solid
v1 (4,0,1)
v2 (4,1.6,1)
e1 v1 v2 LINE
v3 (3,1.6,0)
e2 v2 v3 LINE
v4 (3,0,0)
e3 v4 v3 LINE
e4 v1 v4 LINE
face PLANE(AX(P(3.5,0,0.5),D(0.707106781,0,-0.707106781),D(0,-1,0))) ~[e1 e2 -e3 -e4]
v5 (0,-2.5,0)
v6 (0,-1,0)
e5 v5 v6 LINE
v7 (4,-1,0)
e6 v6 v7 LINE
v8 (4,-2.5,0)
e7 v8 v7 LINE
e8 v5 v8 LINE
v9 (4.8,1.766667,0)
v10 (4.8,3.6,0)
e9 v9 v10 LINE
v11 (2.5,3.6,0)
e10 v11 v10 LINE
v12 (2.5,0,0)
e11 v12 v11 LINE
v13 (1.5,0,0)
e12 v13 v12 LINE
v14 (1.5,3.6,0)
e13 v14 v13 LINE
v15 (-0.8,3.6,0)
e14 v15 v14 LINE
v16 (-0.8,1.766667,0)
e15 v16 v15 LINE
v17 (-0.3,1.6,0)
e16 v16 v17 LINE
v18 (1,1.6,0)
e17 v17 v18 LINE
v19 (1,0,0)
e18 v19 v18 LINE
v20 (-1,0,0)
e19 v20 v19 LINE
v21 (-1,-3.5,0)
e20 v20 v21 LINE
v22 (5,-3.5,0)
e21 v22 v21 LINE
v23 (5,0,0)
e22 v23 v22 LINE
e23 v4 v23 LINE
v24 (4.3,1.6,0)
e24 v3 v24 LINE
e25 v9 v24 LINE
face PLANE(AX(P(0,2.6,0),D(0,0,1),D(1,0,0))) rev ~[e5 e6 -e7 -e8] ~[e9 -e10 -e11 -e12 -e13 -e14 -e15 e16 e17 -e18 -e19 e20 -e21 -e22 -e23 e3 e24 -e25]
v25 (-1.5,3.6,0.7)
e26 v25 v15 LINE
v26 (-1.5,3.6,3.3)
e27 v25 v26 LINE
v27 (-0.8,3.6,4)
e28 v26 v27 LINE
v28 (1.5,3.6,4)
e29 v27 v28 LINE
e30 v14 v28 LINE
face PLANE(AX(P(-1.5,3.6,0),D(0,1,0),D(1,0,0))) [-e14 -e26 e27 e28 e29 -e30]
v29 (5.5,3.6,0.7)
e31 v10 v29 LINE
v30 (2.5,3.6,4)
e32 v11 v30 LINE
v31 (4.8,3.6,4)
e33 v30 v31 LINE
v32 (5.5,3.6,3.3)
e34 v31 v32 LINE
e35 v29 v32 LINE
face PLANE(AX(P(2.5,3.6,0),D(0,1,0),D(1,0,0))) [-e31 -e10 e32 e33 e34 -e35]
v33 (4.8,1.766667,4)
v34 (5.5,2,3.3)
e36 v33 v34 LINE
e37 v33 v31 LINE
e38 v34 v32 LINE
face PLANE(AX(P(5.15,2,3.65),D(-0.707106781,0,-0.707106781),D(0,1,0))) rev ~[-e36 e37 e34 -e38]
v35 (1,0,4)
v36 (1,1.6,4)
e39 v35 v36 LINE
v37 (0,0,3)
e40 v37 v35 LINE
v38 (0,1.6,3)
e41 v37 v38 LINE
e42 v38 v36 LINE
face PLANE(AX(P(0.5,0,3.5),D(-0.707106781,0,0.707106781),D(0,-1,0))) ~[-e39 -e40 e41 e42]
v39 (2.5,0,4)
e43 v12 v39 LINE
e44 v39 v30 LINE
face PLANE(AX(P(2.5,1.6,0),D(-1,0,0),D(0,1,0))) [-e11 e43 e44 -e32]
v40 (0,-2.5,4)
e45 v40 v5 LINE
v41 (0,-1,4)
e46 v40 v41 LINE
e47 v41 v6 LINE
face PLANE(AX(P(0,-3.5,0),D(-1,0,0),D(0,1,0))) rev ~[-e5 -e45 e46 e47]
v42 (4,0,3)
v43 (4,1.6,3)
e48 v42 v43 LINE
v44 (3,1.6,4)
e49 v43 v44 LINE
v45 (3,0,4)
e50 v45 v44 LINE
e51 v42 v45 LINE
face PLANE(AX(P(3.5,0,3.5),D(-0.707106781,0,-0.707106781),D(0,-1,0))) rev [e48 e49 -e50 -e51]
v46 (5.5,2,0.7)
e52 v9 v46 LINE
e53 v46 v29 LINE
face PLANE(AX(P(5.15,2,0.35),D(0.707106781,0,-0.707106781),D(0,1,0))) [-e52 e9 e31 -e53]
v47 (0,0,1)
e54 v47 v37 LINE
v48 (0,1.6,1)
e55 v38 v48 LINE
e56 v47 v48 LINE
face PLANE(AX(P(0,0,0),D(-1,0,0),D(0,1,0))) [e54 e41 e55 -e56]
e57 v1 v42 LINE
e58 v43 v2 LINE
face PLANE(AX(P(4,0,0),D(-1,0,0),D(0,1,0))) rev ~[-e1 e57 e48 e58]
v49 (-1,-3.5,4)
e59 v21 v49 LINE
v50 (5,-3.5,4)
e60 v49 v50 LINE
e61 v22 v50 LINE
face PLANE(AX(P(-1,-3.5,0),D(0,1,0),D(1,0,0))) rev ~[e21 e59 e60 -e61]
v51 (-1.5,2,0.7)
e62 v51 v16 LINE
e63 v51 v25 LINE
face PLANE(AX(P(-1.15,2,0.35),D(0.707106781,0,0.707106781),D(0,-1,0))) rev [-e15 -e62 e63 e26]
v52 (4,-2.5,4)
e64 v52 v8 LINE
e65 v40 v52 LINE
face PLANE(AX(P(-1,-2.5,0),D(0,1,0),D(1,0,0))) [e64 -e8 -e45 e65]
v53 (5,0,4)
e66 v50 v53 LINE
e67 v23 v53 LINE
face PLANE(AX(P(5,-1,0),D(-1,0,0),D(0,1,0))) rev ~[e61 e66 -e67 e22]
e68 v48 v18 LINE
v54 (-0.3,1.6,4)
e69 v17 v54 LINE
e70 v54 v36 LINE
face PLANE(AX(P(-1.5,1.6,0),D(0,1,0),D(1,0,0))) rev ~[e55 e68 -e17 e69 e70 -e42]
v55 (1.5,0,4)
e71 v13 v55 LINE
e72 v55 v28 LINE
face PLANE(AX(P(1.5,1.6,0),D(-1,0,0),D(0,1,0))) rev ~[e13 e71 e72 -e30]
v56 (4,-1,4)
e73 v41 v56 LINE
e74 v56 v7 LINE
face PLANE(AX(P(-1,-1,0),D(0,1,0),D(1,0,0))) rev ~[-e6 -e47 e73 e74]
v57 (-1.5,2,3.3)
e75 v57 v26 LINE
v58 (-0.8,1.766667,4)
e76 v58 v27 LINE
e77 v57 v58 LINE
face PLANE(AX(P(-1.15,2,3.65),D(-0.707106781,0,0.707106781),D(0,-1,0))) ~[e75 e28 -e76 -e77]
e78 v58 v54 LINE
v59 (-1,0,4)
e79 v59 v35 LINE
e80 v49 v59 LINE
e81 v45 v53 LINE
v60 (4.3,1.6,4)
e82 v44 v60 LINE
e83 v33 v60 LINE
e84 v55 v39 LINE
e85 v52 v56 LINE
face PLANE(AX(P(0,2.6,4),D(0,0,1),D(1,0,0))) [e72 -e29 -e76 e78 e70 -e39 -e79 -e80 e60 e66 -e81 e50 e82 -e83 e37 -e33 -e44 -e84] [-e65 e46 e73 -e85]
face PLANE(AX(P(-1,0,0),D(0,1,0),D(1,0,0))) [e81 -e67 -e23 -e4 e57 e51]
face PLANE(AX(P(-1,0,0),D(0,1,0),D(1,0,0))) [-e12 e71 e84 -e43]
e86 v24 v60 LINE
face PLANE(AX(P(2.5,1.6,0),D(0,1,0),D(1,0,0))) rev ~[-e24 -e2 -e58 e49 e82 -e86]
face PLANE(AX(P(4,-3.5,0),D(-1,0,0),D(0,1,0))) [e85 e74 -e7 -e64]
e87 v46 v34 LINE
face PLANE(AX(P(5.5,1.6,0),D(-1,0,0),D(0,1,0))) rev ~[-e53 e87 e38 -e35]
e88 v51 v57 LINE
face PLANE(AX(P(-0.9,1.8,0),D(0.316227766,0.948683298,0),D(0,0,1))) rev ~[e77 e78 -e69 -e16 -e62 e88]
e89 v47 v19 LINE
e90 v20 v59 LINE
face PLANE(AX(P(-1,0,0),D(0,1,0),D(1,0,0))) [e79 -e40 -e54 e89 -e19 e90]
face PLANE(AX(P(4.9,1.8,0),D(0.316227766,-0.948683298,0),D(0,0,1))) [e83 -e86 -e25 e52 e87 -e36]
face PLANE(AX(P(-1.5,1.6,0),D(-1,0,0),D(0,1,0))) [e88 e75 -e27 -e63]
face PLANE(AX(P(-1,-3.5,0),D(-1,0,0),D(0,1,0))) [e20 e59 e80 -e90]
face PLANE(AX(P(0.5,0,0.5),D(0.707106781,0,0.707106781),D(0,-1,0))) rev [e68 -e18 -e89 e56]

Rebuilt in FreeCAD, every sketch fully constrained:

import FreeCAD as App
import Part
import Sketcher

V = App.Vector
Q = App.Units.Quantity


def edges_at(feature, points):
    """Names of the edges that pass closest to the given points."""
    edges = feature.Shape.Edges
    near = lambda p: min(range(len(edges)), key=lambda i: edges[i].distToShape(Part.Vertex(*p))[0])
    return sorted({f"Edge{near(p) + 1}" for p in points})

doc = App.newDocument("Part")
body = doc.addObject("PartDesign::Body", "Body")

# Sketch on XY plane
sketch1 = doc.addObject("Sketcher::SketchObject", "Sketch")
body.addObject(sketch1)
sketch1.AttachmentSupport = (doc.XY_Plane, [""])
sketch1.MapMode = "FlatFace"
sketch1.addGeometry(Part.LineSegment(V(-1, -0.5, 0), V(-1, -3.5, 0)), False)
sketch1.addGeometry(Part.LineSegment(V(-1, -3.5, 0), V(0, -3.5, 0)), False)
sketch1.addGeometry(Part.LineSegment(V(0, -3.5, 0), V(0, -0.5, 0)), False)
sketch1.addGeometry(Part.LineSegment(V(0, -0.5, 0), V(-1, -0.5, 0)), False)
sketch1.addConstraint(Sketcher.Constraint("Coincident", 0, 2, 1, 1))
sketch1.addConstraint(Sketcher.Constraint("Coincident", 1, 2, 2, 1))
sketch1.addConstraint(Sketcher.Constraint("Coincident", 2, 2, 3, 1))
sketch1.addConstraint(Sketcher.Constraint("Coincident", 3, 2, 0, 1))
sketch1.addConstraint(Sketcher.Constraint("Vertical", 0))
sketch1.addConstraint(Sketcher.Constraint("Horizontal", 1))
sketch1.addConstraint(Sketcher.Constraint("Vertical", 2))
sketch1.addConstraint(Sketcher.Constraint("Horizontal", 3))
sketch1.addConstraint(Sketcher.Constraint("PointOnObject", 1, 2, -2))
sketch1.addConstraint(Sketcher.Constraint("DistanceX", 1, 1, 1, 2, Q("1 mm")))
sketch1.addConstraint(Sketcher.Constraint("DistanceY", 0, 2, 0, 1, Q("3 mm")))
sketch1.addConstraint(Sketcher.Constraint("DistanceY", 0, 2, -1, 1, Q("3.5 mm")))
pad1 = doc.addObject("PartDesign::Pad", "Pad")
body.addObject(pad1)
pad1.Profile = sketch1
pad1.Length = 4
body2 = doc.addObject("PartDesign::Body", "Body001")

# Sketch on XY plane
sketch2 = doc.addObject("Sketcher::SketchObject", "Sketch001")
body2.addObject(sketch2)
sketch2.AttachmentSupport = (doc.getObject("XY_Plane001"), [""])
sketch2.MapMode = "FlatFace"
sketch2.addGeometry(Part.LineSegment(V(2.5, 3.5, 0), V(2.5, 1.5, 0)), False)
sketch2.addGeometry(Part.LineSegment(V(2.5, 1.5, 0), V(5.5, 1.5, 0)), False)
sketch2.addGeometry(Part.LineSegment(V(5.5, 1.5, 0), V(5.5, 3.5, 0)), False)
sketch2.addGeometry(Part.LineSegment(V(5.5, 3.5, 0), V(2.5, 3.5, 0)), False)
sketch2.addConstraint(Sketcher.Constraint("Coincident", 0, 2, 1, 1))
sketch2.addConstraint(Sketcher.Constraint("Coincident", 1, 2, 2, 1))
sketch2.addConstraint(Sketcher.Constraint("Coincident", 2, 2, 3, 1))
sketch2.addConstraint(Sketcher.Constraint("Coincident", 3, 2, 0, 1))
sketch2.addConstraint(Sketcher.Constraint("Vertical", 0))
sketch2.addConstraint(Sketcher.Constraint("Horizontal", 1))
sketch2.addConstraint(Sketcher.Constraint("Vertical", 2))
sketch2.addConstraint(Sketcher.Constraint("Horizontal", 3))
sketch2.addConstraint(Sketcher.Constraint("DistanceX", 1, 1, 1, 2, Q("3 mm")))
sketch2.addConstraint(Sketcher.Constraint("DistanceY", 0, 2, 0, 1, Q("2 mm")))
sketch2.addConstraint(Sketcher.Constraint("DistanceX", -1, 1, 0, 2, Q("2.5 mm")))
sketch2.addConstraint(Sketcher.Constraint("DistanceY", -1, 1, 0, 2, Q("1.5 mm")))
pad2 = doc.addObject("PartDesign::Pad", "Pad001")
body2.addObject(pad2)
pad2.Profile = sketch2
pad2.Length = 4
doc.recompute()

chamfer = doc.addObject("PartDesign::Chamfer", "Chamfer")
body2.addObject(chamfer)
chamfer.Base = (pad2, edges_at(pad2, [(5.5, 1.5, 2)]))
chamfer.ChamferType = "Two distances"
chamfer.Size = 0.4
chamfer.Size2 = 1.2
chamfer.FlipDirection = True
doc.recompute()

chamfer2 = doc.addObject("PartDesign::Chamfer", "Chamfer001")
body2.addObject(chamfer2)
chamfer2.Base = (chamfer, edges_at(chamfer, [(5.5, 2.7, 4), (5.5, 2.7, 0)]))
chamfer2.Size = 0.7
body3 = doc.addObject("PartDesign::Body", "Body002")
doc.recompute()

body2.Placement = App.Placement(V(0, 0.1, 0), App.Rotation(V(0, 0, 1), 0))
boolean = doc.addObject("PartDesign::Boolean", "Boolean")
body3.addObject(boolean)
boolean.Type = "Fuse"
boolean.addObjects([body2])
body4 = doc.addObject("PartDesign::Body", "Body003")

# Sketch on XY plane
sketch3 = doc.addObject("Sketcher::SketchObject", "Sketch002")
body4.addObject(sketch3)
sketch3.AttachmentSupport = (doc.getObject("XY_Plane003"), [""])
sketch3.MapMode = "FlatFace"
sketch3.addGeometry(Part.LineSegment(V(4, -0.5, 0), V(4, -3.5, 0)), False)
sketch3.addGeometry(Part.LineSegment(V(4, -3.5, 0), V(5, -3.5, 0)), False)
sketch3.addGeometry(Part.LineSegment(V(5, -3.5, 0), V(5, -0.5, 0)), False)
sketch3.addGeometry(Part.LineSegment(V(5, -0.5, 0), V(4, -0.5, 0)), False)
sketch3.addConstraint(Sketcher.Constraint("Coincident", 0, 2, 1, 1))
sketch3.addConstraint(Sketcher.Constraint("Coincident", 1, 2, 2, 1))
sketch3.addConstraint(Sketcher.Constraint("Coincident", 2, 2, 3, 1))
sketch3.addConstraint(Sketcher.Constraint("Coincident", 3, 2, 0, 1))
sketch3.addConstraint(Sketcher.Constraint("Vertical", 0))
sketch3.addConstraint(Sketcher.Constraint("Horizontal", 1))
sketch3.addConstraint(Sketcher.Constraint("Vertical", 2))
sketch3.addConstraint(Sketcher.Constraint("Horizontal", 3))
sketch3.addConstraint(Sketcher.Constraint("DistanceX", 1, 1, 1, 2, Q("1 mm")))
sketch3.addConstraint(Sketcher.Constraint("DistanceY", 0, 2, 0, 1, Q("3 mm")))
sketch3.addConstraint(Sketcher.Constraint("DistanceX", -1, 1, 0, 2, Q("4 mm")))
sketch3.addConstraint(Sketcher.Constraint("DistanceY", 0, 2, -1, 1, Q("3.5 mm")))
pad3 = doc.addObject("PartDesign::Pad", "Pad002")
body4.addObject(pad3)
pad3.Profile = sketch3
pad3.Length = 4
body5 = doc.addObject("PartDesign::Body", "Body004")

# Sketch on XY plane
sketch4 = doc.addObject("Sketcher::SketchObject", "Sketch003")
body5.addObject(sketch4)
sketch4.AttachmentSupport = (doc.getObject("XY_Plane004"), [""])
sketch4.MapMode = "FlatFace"
sketch4.addGeometry(Part.LineSegment(V(-1, -2.5, 0), V(-1, -3.5, 0)), False)
sketch4.addGeometry(Part.LineSegment(V(-1, -3.5, 0), V(5, -3.5, 0)), False)
sketch4.addGeometry(Part.LineSegment(V(5, -3.5, 0), V(5, -2.5, 0)), False)
sketch4.addGeometry(Part.LineSegment(V(5, -2.5, 0), V(-1, -2.5, 0)), False)
sketch4.addConstraint(Sketcher.Constraint("Coincident", 0, 2, 1, 1))
sketch4.addConstraint(Sketcher.Constraint("Coincident", 1, 2, 2, 1))
sketch4.addConstraint(Sketcher.Constraint("Coincident", 2, 2, 3, 1))
sketch4.addConstraint(Sketcher.Constraint("Coincident", 3, 2, 0, 1))
sketch4.addConstraint(Sketcher.Constraint("Vertical", 0))
sketch4.addConstraint(Sketcher.Constraint("Horizontal", 1))
sketch4.addConstraint(Sketcher.Constraint("Vertical", 2))
sketch4.addConstraint(Sketcher.Constraint("Horizontal", 3))
sketch4.addConstraint(Sketcher.Constraint("DistanceX", 1, 1, 1, 2, Q("6 mm")))
sketch4.addConstraint(Sketcher.Constraint("DistanceY", 0, 2, 0, 1, Q("1 mm")))
sketch4.addConstraint(Sketcher.Constraint("DistanceX", 0, 2, -1, 1, Q("1 mm")))
sketch4.addConstraint(Sketcher.Constraint("DistanceY", 0, 2, -1, 1, Q("3.5 mm")))
pad4 = doc.addObject("PartDesign::Pad", "Pad003")
body5.addObject(pad4)
pad4.Profile = sketch4
pad4.Length = 4
body6 = doc.addObject("PartDesign::Body", "Body005")

# Sketch on XY plane
sketch5 = doc.addObject("Sketcher::SketchObject", "Sketch004")
body6.addObject(sketch5)
sketch5.AttachmentSupport = (doc.getObject("XY_Plane005"), [""])
sketch5.MapMode = "FlatFace"
sketch5.addGeometry(Part.LineSegment(V(-1, 0, 0), V(-1, -1, 0)), False)
sketch5.addGeometry(Part.LineSegment(V(-1, -1, 0), V(5, -1, 0)), False)
sketch5.addGeometry(Part.LineSegment(V(5, -1, 0), V(5, 0, 0)), False)
sketch5.addGeometry(Part.LineSegment(V(5, 0, 0), V(-1, 0, 0)), False)
sketch5.addConstraint(Sketcher.Constraint("Coincident", 0, 2, 1, 1))
sketch5.addConstraint(Sketcher.Constraint("Coincident", 1, 2, 2, 1))
sketch5.addConstraint(Sketcher.Constraint("Coincident", 2, 2, 3, 1))
sketch5.addConstraint(Sketcher.Constraint("Coincident", 3, 2, 0, 1))
sketch5.addConstraint(Sketcher.Constraint("Vertical", 0))
sketch5.addConstraint(Sketcher.Constraint("Horizontal", 1))
sketch5.addConstraint(Sketcher.Constraint("Vertical", 2))
sketch5.addConstraint(Sketcher.Constraint("Horizontal", 3))
sketch5.addConstraint(Sketcher.Constraint("PointOnObject", 2, 2, -1))
sketch5.addConstraint(Sketcher.Constraint("DistanceX", 1, 1, 1, 2, Q("6 mm")))
sketch5.addConstraint(Sketcher.Constraint("DistanceY", 0, 2, 0, 1, Q("1 mm")))
sketch5.addConstraint(Sketcher.Constraint("DistanceX", 0, 2, -1, 1, Q("1 mm")))
pad5 = doc.addObject("PartDesign::Pad", "Pad004")
body6.addObject(pad5)
pad5.Profile = sketch5
pad5.Length = 4
body7 = doc.addObject("PartDesign::Body", "Body006")

# Sketch on XY plane
sketch6 = doc.addObject("Sketcher::SketchObject", "Sketch005")
body7.addObject(sketch6)
sketch6.AttachmentSupport = (doc.getObject("XY_Plane006"), [""])
sketch6.MapMode = "FlatFace"
sketch6.addGeometry(Part.LineSegment(V(0, 2, 0), V(0, 0, 0)), False)
sketch6.addGeometry(Part.LineSegment(V(0, 0, 0), V(1.5, 0, 0)), False)
sketch6.addGeometry(Part.LineSegment(V(1.5, 0, 0), V(1.5, 2, 0)), False)
sketch6.addGeometry(Part.LineSegment(V(1.5, 2, 0), V(0, 2, 0)), False)
sketch6.addConstraint(Sketcher.Constraint("Coincident", 0, 2, 1, 1))
sketch6.addConstraint(Sketcher.Constraint("Coincident", 1, 2, 2, 1))
sketch6.addConstraint(Sketcher.Constraint("Coincident", 2, 2, 3, 1))
sketch6.addConstraint(Sketcher.Constraint("Coincident", 3, 2, 0, 1))
sketch6.addConstraint(Sketcher.Constraint("Vertical", 0))
sketch6.addConstraint(Sketcher.Constraint("Horizontal", 1))
sketch6.addConstraint(Sketcher.Constraint("Vertical", 2))
sketch6.addConstraint(Sketcher.Constraint("Horizontal", 3))
sketch6.addConstraint(Sketcher.Constraint("Coincident", 0, 2, -1, 1))
sketch6.addConstraint(Sketcher.Constraint("DistanceY", 0, 2, 0, 1, Q("2 mm")))
sketch6.addConstraint(Sketcher.Constraint("DistanceX", 1, 1, 1, 2, Q("1.5 mm")))
pad6 = doc.addObject("PartDesign::Pad", "Pad005")
body7.addObject(pad6)
pad6.Profile = sketch6
pad6.Length = 4
doc.recompute()

chamfer3 = doc.addObject("PartDesign::Chamfer", "Chamfer002")
body7.addObject(chamfer3)
chamfer3.Base = (pad6, edges_at(pad6, [(0, 1, 4), (0, 1, 0)]))
chamfer3.Size = 1
body8 = doc.addObject("PartDesign::Body", "Body007")

# Sketch on XY plane
sketch7 = doc.addObject("Sketcher::SketchObject", "Sketch006")
body8.addObject(sketch7)
sketch7.AttachmentSupport = (doc.getObject("XY_Plane007"), [""])
sketch7.MapMode = "FlatFace"
sketch7.addGeometry(Part.LineSegment(V(-1.5, 3.5, 0), V(-1.5, 1.5, 0)), False)
sketch7.addGeometry(Part.LineSegment(V(-1.5, 1.5, 0), V(1.5, 1.5, 0)), False)
sketch7.addGeometry(Part.LineSegment(V(1.5, 1.5, 0), V(1.5, 3.5, 0)), False)
sketch7.addGeometry(Part.LineSegment(V(1.5, 3.5, 0), V(-1.5, 3.5, 0)), False)
sketch7.addConstraint(Sketcher.Constraint("Coincident", 0, 2, 1, 1))
sketch7.addConstraint(Sketcher.Constraint("Coincident", 1, 2, 2, 1))
sketch7.addConstraint(Sketcher.Constraint("Coincident", 2, 2, 3, 1))
sketch7.addConstraint(Sketcher.Constraint("Coincident", 3, 2, 0, 1))
sketch7.addConstraint(Sketcher.Constraint("Vertical", 0))
sketch7.addConstraint(Sketcher.Constraint("Horizontal", 1))
sketch7.addConstraint(Sketcher.Constraint("Vertical", 2))
sketch7.addConstraint(Sketcher.Constraint("Horizontal", 3))
sketch7.addConstraint(Sketcher.Constraint("DistanceX", 1, 1, 1, 2, Q("3 mm")))
sketch7.addConstraint(Sketcher.Constraint("DistanceY", 0, 2, 0, 1, Q("2 mm")))
sketch7.addConstraint(Sketcher.Constraint("DistanceX", 0, 2, -1, 1, Q("1.5 mm")))
sketch7.addConstraint(Sketcher.Constraint("DistanceY", -1, 1, 0, 2, Q("1.5 mm")))
pad7 = doc.addObject("PartDesign::Pad", "Pad006")
body8.addObject(pad7)
pad7.Profile = sketch7
pad7.Length = 4
doc.recompute()

chamfer4 = doc.addObject("PartDesign::Chamfer", "Chamfer003")
body8.addObject(chamfer4)
chamfer4.Base = (pad7, edges_at(pad7, [(-1.5, 1.5, 2)]))
chamfer4.ChamferType = "Two distances"
chamfer4.Size = 0.4
chamfer4.Size2 = 1.2
doc.recompute()

chamfer5 = doc.addObject("PartDesign::Chamfer", "Chamfer004")
body8.addObject(chamfer5)
chamfer5.Base = (chamfer4, edges_at(chamfer4, [(-1.5, 2.7, 4), (-1.5, 2.7, 0)]))
chamfer5.Size = 0.7
body9 = doc.addObject("PartDesign::Body", "Body008")
doc.recompute()

body8.Placement = App.Placement(V(0, 0.1, 0), App.Rotation(V(0, 0, 1), 0))
boolean2 = doc.addObject("PartDesign::Boolean", "Boolean001")
body9.addObject(boolean2)
boolean2.Type = "Fuse"
boolean2.addObjects([body8])
body10 = doc.addObject("PartDesign::Body", "Body009")
body10.AllowCompound = True

# Sketch on XY plane
sketch8 = doc.addObject("Sketcher::SketchObject", "Sketch007")
body10.addObject(sketch8)
sketch8.AttachmentSupport = (doc.getObject("XY_Plane009"), [""])
sketch8.MapMode = "FlatFace"
sketch8.addGeometry(Part.LineSegment(V(2.5, 2, 0), V(2.5, 0, 0)), False)
sketch8.addGeometry(Part.LineSegment(V(2.5, 0, 0), V(4, 0, 0)), False)
sketch8.addGeometry(Part.LineSegment(V(4, 0, 0), V(4, 2, 0)), False)
sketch8.addGeometry(Part.LineSegment(V(4, 2, 0), V(2.5, 2, 0)), False)
sketch8.addConstraint(Sketcher.Constraint("Coincident", 0, 2, 1, 1))
sketch8.addConstraint(Sketcher.Constraint("Coincident", 1, 2, 2, 1))
sketch8.addConstraint(Sketcher.Constraint("Coincident", 2, 2, 3, 1))
sketch8.addConstraint(Sketcher.Constraint("Coincident", 3, 2, 0, 1))
sketch8.addConstraint(Sketcher.Constraint("Vertical", 0))
sketch8.addConstraint(Sketcher.Constraint("Horizontal", 1))
sketch8.addConstraint(Sketcher.Constraint("Vertical", 2))
sketch8.addConstraint(Sketcher.Constraint("Horizontal", 3))
sketch8.addConstraint(Sketcher.Constraint("PointOnObject", 0, 2, -1))
sketch8.addConstraint(Sketcher.Constraint("DistanceY", 0, 2, 0, 1, Q("2 mm")))
sketch8.addConstraint(Sketcher.Constraint("DistanceX", 1, 1, 1, 2, Q("1.5 mm")))
sketch8.addConstraint(Sketcher.Constraint("DistanceX", -1, 1, 1, 2, Q("4 mm")))
pad8 = doc.addObject("PartDesign::Pad", "Pad007")
body10.addObject(pad8)
pad8.Profile = sketch8
pad8.Length = 4
doc.recompute()

chamfer6 = doc.addObject("PartDesign::Chamfer", "Chamfer005")
body10.addObject(chamfer6)
chamfer6.Base = (pad8, edges_at(pad8, [(4, 1, 4), (4, 1, 0)]))
chamfer6.Size = 1
doc.recompute()

boolean3 = doc.addObject("PartDesign::Boolean", "Boolean002")
body10.addObject(boolean3)
boolean3.Type = "Fuse"
boolean3.addObjects([body])
doc.recompute()

boolean4 = doc.addObject("PartDesign::Boolean", "Boolean003")
body10.addObject(boolean4)
boolean4.Type = "Fuse"
boolean4.addObjects([body3])
doc.recompute()

boolean5 = doc.addObject("PartDesign::Boolean", "Boolean004")
body10.addObject(boolean5)
boolean5.Type = "Fuse"
boolean5.addObjects([body4])
doc.recompute()

boolean6 = doc.addObject("PartDesign::Boolean", "Boolean005")
body10.addObject(boolean6)
boolean6.Type = "Fuse"
boolean6.addObjects([body5])
doc.recompute()

boolean7 = doc.addObject("PartDesign::Boolean", "Boolean006")
body10.addObject(boolean7)
boolean7.Type = "Fuse"
boolean7.addObjects([body6])
doc.recompute()

boolean8 = doc.addObject("PartDesign::Boolean", "Boolean007")
body10.addObject(boolean8)
boolean8.Type = "Fuse"
boolean8.addObjects([body7])
doc.recompute()

boolean9 = doc.addObject("PartDesign::Boolean", "Boolean008")
body10.addObject(boolean9)
boolean9.Type = "Fuse"
boolean9.addObjects([body9])

doc.recompute()
